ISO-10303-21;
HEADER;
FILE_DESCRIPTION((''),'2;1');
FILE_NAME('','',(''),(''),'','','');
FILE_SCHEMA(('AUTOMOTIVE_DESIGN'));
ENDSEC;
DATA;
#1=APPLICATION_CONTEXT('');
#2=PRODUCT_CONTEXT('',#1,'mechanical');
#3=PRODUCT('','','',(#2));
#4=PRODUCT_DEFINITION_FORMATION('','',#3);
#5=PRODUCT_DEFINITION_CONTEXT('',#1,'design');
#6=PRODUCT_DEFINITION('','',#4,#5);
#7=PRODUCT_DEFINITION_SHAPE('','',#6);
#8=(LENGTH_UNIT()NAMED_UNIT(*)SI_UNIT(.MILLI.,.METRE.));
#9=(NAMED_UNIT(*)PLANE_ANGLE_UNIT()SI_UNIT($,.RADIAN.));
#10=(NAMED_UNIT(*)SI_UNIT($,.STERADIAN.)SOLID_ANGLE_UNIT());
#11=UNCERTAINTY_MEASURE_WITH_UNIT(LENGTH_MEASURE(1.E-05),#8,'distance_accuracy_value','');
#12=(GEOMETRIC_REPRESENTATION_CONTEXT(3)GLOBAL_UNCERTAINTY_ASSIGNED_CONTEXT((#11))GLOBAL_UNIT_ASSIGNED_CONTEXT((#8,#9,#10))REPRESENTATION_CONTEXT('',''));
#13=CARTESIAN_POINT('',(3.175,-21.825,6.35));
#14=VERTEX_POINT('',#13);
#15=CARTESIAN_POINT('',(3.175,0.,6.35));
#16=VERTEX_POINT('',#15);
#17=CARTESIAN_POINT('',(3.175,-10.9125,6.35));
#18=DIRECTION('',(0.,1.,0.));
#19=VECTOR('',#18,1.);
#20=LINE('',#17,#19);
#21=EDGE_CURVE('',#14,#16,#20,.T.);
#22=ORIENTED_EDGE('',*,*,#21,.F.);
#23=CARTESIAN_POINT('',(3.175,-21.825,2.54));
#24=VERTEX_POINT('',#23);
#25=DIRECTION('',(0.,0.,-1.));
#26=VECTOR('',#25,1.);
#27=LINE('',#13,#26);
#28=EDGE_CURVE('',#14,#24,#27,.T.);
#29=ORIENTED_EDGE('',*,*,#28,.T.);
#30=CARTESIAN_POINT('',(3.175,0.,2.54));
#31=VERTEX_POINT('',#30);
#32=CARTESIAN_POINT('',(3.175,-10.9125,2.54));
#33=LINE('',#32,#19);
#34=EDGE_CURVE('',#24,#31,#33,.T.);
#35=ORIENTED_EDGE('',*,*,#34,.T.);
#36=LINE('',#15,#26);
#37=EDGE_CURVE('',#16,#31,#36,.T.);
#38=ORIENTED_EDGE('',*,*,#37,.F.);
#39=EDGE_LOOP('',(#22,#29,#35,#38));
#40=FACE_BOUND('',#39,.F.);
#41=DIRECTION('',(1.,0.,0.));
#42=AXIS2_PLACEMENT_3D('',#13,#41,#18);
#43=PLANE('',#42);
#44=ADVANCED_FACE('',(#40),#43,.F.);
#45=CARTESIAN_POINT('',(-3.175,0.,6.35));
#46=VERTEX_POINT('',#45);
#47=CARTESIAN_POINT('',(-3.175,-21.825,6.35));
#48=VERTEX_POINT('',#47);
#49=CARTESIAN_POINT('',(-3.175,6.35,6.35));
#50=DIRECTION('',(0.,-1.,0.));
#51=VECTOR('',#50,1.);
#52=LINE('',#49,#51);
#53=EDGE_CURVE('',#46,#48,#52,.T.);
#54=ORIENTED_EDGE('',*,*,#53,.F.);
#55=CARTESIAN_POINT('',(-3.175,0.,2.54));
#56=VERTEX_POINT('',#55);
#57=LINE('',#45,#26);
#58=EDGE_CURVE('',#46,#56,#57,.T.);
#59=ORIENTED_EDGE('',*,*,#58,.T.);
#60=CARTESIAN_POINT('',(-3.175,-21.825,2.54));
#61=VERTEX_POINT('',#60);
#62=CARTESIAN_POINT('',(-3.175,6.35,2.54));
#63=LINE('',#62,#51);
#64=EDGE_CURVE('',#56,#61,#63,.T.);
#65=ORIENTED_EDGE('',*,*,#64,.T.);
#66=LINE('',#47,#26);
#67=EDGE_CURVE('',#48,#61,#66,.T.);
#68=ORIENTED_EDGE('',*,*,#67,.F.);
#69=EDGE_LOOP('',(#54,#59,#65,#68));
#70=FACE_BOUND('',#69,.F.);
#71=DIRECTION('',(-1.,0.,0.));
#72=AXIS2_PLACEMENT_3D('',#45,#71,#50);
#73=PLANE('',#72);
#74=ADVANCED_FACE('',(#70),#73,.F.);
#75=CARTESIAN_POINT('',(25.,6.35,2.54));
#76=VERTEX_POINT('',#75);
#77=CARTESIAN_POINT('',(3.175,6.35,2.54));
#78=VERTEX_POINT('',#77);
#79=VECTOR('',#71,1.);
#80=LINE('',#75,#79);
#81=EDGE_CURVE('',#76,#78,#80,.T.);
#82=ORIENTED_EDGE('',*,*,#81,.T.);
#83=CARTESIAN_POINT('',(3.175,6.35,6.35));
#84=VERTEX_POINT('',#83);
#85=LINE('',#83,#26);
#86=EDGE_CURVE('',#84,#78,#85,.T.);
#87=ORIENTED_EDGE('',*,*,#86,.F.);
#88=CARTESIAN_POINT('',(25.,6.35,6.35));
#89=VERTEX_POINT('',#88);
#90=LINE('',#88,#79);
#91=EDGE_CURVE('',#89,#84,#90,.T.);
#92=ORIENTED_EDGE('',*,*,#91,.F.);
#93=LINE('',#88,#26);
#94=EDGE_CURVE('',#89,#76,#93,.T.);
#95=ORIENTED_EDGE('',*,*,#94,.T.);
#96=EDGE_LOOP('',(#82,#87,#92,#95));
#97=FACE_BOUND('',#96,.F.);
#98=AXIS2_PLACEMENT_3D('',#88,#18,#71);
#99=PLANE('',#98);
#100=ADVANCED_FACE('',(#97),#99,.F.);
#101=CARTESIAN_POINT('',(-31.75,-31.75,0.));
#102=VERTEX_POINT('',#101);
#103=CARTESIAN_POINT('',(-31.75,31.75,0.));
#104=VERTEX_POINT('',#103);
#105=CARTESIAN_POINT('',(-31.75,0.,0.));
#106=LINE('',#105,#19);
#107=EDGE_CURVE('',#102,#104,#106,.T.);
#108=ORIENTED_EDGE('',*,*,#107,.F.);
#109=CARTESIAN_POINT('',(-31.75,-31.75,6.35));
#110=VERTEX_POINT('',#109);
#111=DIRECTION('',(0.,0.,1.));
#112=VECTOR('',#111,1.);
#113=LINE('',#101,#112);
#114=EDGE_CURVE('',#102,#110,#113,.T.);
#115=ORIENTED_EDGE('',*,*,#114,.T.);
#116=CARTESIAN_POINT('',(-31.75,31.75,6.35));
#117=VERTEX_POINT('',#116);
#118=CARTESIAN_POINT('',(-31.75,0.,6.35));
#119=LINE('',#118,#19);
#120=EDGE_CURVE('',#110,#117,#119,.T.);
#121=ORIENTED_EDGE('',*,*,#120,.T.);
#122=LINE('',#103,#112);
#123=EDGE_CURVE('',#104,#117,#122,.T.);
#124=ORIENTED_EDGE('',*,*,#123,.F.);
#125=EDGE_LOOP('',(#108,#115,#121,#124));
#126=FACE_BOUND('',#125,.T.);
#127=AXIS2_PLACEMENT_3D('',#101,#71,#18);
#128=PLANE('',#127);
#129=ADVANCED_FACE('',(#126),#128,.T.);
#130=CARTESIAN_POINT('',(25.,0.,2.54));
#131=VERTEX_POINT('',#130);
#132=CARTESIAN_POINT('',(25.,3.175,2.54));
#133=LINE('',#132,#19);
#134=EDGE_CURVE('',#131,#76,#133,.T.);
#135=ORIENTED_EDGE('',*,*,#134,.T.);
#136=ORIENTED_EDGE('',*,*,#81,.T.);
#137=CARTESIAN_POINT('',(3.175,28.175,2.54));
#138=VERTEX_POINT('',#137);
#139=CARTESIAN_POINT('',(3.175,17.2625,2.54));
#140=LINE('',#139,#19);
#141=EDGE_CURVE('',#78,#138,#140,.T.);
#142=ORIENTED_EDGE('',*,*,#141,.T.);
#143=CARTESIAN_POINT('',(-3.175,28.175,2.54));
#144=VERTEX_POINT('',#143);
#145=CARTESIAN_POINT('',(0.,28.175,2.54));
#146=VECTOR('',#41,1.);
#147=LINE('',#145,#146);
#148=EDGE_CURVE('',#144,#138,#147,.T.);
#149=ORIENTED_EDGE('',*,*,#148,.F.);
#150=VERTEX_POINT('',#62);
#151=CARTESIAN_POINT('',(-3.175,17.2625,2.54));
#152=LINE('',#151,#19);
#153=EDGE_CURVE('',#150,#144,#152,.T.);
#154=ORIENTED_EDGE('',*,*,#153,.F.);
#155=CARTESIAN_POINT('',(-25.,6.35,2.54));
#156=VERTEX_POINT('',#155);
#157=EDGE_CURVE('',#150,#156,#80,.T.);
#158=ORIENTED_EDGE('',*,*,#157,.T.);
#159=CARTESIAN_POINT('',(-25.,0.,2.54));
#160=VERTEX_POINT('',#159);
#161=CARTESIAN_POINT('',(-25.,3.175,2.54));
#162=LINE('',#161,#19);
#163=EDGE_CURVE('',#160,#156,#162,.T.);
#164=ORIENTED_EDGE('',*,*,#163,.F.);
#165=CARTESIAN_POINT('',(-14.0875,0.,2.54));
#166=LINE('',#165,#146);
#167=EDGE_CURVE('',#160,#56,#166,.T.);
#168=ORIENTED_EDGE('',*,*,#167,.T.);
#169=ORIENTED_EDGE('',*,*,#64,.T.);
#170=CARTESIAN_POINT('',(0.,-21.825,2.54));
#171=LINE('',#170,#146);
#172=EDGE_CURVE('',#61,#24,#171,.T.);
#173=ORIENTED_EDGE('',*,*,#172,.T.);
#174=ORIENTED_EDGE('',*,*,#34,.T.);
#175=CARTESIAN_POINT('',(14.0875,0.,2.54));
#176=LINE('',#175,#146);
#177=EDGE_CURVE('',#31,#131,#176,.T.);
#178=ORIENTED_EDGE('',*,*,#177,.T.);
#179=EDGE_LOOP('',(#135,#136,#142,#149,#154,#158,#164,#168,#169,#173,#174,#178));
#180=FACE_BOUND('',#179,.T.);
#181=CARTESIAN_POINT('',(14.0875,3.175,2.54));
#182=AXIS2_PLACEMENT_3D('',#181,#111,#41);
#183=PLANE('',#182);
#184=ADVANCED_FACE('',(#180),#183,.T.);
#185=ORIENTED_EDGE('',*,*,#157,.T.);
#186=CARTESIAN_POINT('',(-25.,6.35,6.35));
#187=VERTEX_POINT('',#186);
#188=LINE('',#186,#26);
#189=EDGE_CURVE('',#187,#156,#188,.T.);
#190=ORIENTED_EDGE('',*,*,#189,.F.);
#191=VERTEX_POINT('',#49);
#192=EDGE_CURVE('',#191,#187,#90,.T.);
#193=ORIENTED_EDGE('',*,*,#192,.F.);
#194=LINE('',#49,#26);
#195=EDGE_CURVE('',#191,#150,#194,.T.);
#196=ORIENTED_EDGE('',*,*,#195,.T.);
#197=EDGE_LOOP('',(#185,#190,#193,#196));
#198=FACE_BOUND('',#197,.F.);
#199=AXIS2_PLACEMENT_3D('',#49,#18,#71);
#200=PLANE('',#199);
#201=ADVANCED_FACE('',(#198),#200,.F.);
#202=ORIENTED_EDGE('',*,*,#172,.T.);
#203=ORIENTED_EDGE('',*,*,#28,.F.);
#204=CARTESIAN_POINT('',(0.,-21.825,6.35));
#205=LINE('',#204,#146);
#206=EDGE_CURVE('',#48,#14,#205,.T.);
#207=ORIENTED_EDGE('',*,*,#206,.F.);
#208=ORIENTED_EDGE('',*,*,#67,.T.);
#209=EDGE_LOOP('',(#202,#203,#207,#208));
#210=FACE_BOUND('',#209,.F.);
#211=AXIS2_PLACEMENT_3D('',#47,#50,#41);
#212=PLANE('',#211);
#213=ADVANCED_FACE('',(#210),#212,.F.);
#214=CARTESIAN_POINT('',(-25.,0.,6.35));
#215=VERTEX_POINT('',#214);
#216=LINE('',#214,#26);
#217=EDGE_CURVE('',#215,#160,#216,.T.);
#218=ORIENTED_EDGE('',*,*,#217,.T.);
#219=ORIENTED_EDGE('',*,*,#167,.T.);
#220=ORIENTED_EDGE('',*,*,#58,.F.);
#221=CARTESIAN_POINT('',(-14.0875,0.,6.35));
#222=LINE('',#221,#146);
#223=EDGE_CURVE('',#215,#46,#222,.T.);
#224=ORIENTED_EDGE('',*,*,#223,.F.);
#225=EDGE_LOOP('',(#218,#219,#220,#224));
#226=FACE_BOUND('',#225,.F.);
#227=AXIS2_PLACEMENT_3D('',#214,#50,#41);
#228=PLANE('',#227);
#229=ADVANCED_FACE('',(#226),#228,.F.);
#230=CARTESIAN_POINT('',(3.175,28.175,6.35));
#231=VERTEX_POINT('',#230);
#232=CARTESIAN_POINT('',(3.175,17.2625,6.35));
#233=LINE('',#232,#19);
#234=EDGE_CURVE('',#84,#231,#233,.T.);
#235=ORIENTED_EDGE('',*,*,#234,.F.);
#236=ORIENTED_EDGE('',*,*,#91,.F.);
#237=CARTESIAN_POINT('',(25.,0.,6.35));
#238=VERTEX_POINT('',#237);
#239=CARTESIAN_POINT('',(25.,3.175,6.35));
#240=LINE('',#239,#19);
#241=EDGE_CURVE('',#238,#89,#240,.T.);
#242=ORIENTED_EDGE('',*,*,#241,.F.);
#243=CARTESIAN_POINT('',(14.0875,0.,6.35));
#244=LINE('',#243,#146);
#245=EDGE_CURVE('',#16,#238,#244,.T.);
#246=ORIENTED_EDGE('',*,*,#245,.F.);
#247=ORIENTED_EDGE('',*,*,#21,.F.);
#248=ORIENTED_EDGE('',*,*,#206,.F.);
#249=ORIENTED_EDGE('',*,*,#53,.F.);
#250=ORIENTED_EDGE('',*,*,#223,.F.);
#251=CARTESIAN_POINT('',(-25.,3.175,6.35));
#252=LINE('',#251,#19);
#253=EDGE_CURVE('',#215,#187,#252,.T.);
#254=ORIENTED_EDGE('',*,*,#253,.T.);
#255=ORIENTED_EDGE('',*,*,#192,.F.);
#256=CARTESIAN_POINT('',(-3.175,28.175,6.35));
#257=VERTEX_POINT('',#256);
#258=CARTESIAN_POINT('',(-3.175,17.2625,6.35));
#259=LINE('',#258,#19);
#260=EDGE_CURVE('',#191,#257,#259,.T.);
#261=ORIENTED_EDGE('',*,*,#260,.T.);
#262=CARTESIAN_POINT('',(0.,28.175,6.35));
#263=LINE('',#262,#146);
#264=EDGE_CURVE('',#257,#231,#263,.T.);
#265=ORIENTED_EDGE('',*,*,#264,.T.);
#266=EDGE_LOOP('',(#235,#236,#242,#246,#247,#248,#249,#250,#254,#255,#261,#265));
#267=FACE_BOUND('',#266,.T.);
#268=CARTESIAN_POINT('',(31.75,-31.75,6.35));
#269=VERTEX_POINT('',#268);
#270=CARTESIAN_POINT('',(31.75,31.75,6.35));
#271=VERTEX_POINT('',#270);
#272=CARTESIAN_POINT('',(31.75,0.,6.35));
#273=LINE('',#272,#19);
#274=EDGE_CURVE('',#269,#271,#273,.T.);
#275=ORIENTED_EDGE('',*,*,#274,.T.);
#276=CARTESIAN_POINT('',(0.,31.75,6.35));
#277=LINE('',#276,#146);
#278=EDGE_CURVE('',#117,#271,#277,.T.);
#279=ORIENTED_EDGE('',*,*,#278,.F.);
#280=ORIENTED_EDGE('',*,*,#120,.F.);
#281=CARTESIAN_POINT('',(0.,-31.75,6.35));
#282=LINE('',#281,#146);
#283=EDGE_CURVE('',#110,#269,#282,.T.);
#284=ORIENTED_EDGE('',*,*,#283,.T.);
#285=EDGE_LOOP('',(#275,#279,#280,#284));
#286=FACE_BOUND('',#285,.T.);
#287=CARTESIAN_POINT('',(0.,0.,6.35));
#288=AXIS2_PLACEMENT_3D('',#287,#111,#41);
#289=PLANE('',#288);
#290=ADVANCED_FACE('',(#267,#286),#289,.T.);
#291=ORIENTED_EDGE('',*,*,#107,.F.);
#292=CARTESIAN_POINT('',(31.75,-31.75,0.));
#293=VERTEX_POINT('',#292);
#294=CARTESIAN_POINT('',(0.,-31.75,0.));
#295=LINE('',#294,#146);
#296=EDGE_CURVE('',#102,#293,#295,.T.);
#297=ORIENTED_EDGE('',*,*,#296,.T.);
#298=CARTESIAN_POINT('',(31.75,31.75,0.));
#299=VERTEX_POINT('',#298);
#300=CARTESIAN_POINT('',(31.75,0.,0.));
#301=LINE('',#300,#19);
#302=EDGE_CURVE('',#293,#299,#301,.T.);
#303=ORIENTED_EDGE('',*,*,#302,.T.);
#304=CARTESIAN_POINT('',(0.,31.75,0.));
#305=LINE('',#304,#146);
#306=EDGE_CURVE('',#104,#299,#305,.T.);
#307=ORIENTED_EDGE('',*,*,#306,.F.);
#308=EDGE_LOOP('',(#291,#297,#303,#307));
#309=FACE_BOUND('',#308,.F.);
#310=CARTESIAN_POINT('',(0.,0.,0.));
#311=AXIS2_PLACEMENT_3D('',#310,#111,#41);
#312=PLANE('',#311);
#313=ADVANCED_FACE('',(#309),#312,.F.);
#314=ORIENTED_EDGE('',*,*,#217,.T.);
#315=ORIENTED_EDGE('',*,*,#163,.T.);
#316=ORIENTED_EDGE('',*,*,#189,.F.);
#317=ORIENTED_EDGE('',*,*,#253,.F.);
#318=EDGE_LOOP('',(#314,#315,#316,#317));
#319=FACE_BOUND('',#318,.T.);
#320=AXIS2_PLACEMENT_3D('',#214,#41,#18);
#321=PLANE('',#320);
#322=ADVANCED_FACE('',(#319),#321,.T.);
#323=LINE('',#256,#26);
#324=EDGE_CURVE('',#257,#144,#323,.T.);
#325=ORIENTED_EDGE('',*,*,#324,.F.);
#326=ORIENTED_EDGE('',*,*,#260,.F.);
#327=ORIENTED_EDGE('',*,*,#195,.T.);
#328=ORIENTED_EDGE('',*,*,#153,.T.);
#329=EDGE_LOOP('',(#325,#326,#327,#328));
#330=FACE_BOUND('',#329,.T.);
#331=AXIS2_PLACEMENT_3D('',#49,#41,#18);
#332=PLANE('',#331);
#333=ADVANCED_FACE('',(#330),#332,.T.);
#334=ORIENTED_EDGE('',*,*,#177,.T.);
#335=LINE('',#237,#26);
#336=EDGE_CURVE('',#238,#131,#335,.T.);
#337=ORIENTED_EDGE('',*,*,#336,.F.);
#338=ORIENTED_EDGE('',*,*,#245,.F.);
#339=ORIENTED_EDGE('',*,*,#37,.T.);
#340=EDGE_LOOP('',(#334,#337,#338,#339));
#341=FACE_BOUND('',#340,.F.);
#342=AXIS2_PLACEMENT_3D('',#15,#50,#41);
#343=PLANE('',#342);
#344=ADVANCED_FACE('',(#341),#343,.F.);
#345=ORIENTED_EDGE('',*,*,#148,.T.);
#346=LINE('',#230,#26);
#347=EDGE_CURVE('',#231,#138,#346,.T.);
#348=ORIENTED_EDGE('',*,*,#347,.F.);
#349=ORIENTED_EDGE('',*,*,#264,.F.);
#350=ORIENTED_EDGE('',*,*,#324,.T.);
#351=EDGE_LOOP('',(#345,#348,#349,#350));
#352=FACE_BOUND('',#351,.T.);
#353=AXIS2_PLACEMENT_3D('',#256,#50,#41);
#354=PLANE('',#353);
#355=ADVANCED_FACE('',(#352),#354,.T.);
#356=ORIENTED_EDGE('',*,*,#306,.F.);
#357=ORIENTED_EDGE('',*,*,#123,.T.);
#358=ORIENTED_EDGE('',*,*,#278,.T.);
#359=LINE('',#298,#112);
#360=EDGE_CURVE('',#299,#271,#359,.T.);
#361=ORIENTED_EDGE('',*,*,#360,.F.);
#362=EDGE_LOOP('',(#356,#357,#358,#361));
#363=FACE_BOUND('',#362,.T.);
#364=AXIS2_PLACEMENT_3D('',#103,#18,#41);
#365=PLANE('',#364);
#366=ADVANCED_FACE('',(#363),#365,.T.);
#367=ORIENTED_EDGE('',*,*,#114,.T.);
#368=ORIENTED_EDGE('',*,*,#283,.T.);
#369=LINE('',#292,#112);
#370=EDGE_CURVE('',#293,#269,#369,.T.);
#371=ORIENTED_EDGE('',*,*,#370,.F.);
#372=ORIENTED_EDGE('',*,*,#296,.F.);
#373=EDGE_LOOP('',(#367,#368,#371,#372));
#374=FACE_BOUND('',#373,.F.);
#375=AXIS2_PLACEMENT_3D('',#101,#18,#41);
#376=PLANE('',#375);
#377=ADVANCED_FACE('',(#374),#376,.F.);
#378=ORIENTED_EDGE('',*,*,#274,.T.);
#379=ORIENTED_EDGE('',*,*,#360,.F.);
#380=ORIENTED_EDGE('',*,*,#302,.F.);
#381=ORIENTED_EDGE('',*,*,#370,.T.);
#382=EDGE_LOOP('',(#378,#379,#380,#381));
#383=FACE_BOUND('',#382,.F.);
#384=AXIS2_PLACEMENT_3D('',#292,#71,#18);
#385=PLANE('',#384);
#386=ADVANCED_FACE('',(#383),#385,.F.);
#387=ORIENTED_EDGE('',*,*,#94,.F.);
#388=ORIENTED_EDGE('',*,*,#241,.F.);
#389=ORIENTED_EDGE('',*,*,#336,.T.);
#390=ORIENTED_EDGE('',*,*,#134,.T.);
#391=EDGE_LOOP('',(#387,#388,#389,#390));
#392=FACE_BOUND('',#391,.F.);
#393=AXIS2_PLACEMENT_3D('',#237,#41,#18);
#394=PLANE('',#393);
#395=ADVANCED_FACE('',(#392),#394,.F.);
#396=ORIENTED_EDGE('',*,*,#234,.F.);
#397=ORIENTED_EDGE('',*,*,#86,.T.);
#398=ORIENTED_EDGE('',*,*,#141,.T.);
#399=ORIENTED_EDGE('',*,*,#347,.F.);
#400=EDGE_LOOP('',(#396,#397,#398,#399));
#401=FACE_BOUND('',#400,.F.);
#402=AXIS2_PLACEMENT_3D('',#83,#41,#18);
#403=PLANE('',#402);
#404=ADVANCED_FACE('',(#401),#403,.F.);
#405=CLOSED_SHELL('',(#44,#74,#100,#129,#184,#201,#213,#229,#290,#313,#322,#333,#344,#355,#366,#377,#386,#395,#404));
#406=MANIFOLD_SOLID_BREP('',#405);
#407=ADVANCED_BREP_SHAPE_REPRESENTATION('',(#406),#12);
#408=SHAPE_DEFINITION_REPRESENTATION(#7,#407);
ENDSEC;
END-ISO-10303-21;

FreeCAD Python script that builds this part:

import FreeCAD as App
import Part
import Sketcher
from FreeCAD import Vector
Q = App.Units.Quantity


def add_polygon(sketch, points):
    """Adds a closed chain of lines whose ends are joined by coincident constraints."""
    first, n = sketch.GeometryCount, len(points)
    for a, b in zip(points, points[1:] + points[:1]):
        sketch.addGeometry(Part.LineSegment(App.Vector(*a, 0), App.Vector(*b, 0)), False)
    for i in range(n):
        sketch.addConstraint(Sketcher.Constraint("Coincident", first + i, 2, first + (i + 1) % n, 1))

doc = App.newDocument("Part")
body = doc.addObject("PartDesign::Body", "Body")

sketch1 = body.newObject("Sketcher::SketchObject", "Sketch")
sketch1.AttachmentSupport = (doc.getObject("XY_Plane"), [""])
sketch1.MapMode = "FlatFace"
add_polygon(sketch1, [(-31.75, 31.75), (-31.75, -31.75), (31.75, -31.75), (31.75, 31.75)])
sketch1.addConstraint([
    Sketcher.Constraint("Vertical", 0),
    Sketcher.Constraint("Horizontal", 1),
    Sketcher.Constraint("Vertical", 2),
    Sketcher.Constraint("Horizontal", 3),
    Sketcher.Constraint("Symmetric", 0, 2, 2, 2, -1, 1),
    Sketcher.Constraint("Equal", 3, 0),
    Sketcher.Constraint("DistanceX", 1, 1, 1, 2, Q("2.5 in")),
])
pad1 = body.newObject("PartDesign::Pad", "Pad")
pad1.Profile = sketch1
pad1.Length = Q("0.25 in")

sketch2 = body.newObject("Sketcher::SketchObject", "Sketch001")
sketch2.AttachmentSupport = (doc.getObject("XY_Plane"), [""])
sketch2.MapMode = "FlatFace"
sketch2.AttachmentOffset = App.Placement(Vector(0, 0, 0.25 * 25.4), App.Rotation())
add_polygon(sketch2, [(3.175, 0), (25, 0), (25, 6.35), (3.175, 6.35), (3.175, 28.175), (-3.175, 28.175), (-3.175, 6.35), (-25, 6.35), (-25, 0), (-3.175, 0), (-3.175, -21.825), (3.175, -21.825)])
sketch2.addConstraint([
    Sketcher.Constraint("Horizontal", 0),
    Sketcher.Constraint("Vertical", 1),
    Sketcher.Constraint("Horizontal", 2),
    Sketcher.Constraint("Vertical", 3),
    Sketcher.Constraint("Horizontal", 4),
    Sketcher.Constraint("Vertical", 5),
    Sketcher.Constraint("Horizontal", 6),
    Sketcher.Constraint("Vertical", 7),
    Sketcher.Constraint("Horizontal", 8),
    Sketcher.Constraint("Vertical", 9),
    Sketcher.Constraint("Horizontal", 10),
    Sketcher.Constraint("Vertical", 11),
    Sketcher.Constraint("Symmetric", 0, 2, 7, 2, -1, 1),
    Sketcher.Constraint("Symmetric", 2, 2, 5, 2, -2),
    Sketcher.Constraint("Symmetric", 8, 2, 11, 2, -2),
    Sketcher.Constraint("Vertical", 5, 2, 8, 2),
    Sketcher.Constraint("Equal", 10, 1),
    Sketcher.Constraint("Equal", 8, 3),
    Sketcher.Constraint("Equal", 5, 9),
    Sketcher.Constraint("DistanceX", 4, 2, 4, 1, Q("0.25 in")),
    Sketcher.Constraint("DistanceX", 0, 1, 0, 2, Q("21.825 mm")),
])
pocket1 = body.newObject("PartDesign::Pocket", "Pocket")
pocket1.Profile = sketch2
pocket1.Length = Q("0.15 in")

doc.recompute()
